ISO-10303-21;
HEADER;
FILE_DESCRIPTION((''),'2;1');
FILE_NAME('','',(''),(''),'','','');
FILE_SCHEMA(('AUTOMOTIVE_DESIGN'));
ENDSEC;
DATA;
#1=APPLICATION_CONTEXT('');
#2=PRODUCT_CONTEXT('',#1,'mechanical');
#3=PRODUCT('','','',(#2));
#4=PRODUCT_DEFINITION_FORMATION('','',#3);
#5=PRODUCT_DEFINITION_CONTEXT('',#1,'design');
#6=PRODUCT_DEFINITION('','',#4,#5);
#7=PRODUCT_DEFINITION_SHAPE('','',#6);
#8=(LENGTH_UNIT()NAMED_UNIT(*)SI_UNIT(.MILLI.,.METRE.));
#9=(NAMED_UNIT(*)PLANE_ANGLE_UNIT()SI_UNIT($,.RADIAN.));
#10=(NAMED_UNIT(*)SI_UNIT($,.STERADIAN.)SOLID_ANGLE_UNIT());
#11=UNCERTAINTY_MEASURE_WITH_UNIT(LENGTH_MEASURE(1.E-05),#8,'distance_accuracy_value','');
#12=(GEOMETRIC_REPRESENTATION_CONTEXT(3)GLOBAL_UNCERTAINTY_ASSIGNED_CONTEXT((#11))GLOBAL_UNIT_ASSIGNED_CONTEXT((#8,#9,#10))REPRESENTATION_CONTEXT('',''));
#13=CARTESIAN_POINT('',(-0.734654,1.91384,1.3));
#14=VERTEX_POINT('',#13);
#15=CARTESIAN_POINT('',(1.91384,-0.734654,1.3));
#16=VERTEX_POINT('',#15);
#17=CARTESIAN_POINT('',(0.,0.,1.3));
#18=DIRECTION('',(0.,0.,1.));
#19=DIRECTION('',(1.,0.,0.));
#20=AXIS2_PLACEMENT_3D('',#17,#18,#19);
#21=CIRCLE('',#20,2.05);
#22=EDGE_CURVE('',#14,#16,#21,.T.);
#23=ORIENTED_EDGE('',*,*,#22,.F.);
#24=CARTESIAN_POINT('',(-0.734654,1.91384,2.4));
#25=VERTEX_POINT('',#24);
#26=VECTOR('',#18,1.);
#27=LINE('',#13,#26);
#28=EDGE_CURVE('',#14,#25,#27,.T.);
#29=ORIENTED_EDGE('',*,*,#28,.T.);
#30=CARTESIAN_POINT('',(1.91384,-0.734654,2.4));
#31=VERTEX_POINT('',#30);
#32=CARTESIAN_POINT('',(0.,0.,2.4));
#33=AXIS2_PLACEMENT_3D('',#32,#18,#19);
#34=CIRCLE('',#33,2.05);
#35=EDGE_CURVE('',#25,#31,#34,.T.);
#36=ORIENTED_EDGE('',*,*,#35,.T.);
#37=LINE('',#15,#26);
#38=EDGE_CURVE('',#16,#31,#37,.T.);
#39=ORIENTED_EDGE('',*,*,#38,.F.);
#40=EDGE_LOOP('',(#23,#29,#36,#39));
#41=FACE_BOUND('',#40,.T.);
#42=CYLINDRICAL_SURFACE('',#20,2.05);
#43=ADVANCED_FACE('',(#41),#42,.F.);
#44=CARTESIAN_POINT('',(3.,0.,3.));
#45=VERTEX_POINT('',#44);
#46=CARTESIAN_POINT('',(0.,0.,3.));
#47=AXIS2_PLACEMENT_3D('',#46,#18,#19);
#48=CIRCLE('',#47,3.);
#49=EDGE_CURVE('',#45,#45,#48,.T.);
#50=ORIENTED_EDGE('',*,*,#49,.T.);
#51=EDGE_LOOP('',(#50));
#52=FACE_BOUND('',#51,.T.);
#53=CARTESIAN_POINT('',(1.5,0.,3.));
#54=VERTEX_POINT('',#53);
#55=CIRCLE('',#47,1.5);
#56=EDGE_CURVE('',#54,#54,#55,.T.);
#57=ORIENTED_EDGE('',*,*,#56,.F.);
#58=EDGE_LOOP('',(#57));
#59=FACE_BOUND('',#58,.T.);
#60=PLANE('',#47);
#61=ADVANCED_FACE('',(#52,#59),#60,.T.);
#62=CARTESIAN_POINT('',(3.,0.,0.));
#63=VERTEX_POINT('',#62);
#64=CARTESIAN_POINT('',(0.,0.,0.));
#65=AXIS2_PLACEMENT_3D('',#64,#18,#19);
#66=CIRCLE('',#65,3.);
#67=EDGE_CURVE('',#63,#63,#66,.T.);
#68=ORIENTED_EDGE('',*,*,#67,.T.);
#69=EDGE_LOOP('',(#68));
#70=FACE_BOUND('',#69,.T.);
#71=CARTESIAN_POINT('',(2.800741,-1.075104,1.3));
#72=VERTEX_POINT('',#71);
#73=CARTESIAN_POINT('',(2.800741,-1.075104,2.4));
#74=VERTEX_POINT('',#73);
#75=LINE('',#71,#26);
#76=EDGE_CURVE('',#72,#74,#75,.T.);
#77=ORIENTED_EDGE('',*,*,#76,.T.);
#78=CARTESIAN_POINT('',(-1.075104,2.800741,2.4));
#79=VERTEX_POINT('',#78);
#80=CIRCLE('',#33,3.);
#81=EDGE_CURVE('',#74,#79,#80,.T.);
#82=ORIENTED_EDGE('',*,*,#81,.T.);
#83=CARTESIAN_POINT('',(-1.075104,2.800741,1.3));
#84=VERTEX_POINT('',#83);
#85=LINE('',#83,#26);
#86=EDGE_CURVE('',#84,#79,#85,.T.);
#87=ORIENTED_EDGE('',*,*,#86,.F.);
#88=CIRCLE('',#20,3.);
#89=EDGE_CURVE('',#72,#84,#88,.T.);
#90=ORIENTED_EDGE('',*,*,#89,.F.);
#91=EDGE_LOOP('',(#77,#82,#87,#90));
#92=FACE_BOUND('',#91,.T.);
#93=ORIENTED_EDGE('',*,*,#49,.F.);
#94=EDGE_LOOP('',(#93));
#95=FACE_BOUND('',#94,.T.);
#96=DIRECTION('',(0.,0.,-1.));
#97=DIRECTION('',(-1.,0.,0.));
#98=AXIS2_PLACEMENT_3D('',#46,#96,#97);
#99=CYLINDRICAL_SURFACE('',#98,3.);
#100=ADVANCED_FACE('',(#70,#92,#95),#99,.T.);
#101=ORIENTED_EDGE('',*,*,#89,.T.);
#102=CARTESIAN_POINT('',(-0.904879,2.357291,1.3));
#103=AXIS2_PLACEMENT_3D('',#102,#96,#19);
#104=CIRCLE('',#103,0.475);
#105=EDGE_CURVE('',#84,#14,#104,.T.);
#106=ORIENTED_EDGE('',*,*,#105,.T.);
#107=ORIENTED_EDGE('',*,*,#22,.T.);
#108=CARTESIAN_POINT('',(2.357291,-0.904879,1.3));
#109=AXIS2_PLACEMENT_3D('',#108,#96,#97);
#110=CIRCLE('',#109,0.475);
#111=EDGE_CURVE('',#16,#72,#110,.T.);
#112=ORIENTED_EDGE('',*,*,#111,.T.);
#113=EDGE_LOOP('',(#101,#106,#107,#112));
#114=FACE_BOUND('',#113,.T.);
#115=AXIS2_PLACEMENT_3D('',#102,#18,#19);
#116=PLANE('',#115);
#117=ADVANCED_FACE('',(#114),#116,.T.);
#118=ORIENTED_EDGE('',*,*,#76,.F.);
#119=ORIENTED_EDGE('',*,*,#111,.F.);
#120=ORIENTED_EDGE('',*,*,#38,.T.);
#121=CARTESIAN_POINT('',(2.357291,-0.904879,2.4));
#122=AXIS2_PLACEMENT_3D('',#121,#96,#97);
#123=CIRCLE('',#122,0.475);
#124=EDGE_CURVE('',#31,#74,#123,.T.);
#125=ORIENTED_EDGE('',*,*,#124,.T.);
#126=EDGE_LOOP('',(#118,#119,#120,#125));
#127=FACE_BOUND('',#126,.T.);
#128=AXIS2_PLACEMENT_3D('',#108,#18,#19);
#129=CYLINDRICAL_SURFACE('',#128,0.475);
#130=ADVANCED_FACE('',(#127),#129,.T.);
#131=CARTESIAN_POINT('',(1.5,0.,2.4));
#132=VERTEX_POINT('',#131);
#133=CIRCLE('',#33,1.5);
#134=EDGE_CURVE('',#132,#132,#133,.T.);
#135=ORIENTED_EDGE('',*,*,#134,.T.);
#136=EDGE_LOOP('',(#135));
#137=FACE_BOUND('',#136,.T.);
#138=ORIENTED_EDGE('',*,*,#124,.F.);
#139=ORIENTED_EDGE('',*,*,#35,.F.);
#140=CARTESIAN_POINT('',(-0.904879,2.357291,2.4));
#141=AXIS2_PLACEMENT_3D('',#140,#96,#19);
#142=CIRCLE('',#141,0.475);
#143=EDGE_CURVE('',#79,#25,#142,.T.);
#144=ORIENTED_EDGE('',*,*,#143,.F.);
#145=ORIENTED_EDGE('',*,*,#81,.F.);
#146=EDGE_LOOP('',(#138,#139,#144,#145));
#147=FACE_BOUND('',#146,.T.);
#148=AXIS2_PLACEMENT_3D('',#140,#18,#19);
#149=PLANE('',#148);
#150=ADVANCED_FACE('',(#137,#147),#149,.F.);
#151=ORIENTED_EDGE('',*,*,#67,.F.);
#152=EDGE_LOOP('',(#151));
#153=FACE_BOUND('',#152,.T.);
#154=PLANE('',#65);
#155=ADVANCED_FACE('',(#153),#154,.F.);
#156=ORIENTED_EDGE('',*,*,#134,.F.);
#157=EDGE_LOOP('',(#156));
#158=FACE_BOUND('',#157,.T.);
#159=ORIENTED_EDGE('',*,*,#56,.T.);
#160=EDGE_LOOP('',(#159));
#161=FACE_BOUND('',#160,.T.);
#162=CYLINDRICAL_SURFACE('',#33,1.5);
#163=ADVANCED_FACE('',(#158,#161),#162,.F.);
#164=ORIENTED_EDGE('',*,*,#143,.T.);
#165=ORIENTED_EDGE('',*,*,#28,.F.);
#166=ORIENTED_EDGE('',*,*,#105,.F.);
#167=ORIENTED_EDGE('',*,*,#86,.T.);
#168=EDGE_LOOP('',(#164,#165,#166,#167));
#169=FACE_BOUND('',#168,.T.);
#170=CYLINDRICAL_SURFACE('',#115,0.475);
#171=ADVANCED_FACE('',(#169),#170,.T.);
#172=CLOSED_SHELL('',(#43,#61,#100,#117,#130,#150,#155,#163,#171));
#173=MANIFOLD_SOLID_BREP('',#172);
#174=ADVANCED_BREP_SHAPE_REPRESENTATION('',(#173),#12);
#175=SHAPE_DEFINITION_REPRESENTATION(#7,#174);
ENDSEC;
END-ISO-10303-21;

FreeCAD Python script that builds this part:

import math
import FreeCAD as App
import Part
import Sketcher

V = App.Vector
Q = App.Units.Quantity

doc = App.newDocument("Part")
body = doc.addObject("PartDesign::Body", "Body")

# Sketch on XY plane
sketch1 = doc.addObject("Sketcher::SketchObject", "Sketch")
body.addObject(sketch1)
sketch1.AttachmentSupport = (doc.XY_Plane, [""])
sketch1.MapMode = "FlatFace"
sketch1.addGeometry(Part.Circle(V(0, 0, 0), V(0, 0, 1), 3), False)
sketch1.addConstraint([
    Sketcher.Constraint("Coincident", 0, 3, -1, 1),
    Sketcher.Constraint("Diameter", 0, 6.0),
])
pad1 = doc.addObject("PartDesign::Pad", "Pad")
body.addObject(pad1)
pad1.Profile = sketch1
pad1.Length = 3

# Sketch on XY plane
sketch2 = doc.addObject("Sketcher::SketchObject", "Sketch001")
body.addObject(sketch2)
sketch2.AttachmentSupport = (doc.XY_Plane, [""])
sketch2.MapMode = "FlatFace"
sketch2.AttachmentOffset = App.Placement(V(0, 0, 3), App.Rotation())
sketch2.addGeometry(Part.Circle(V(0, 0, 0), V(0, 0, 1), 1.5), False)
sketch2.addConstraint([
    Sketcher.Constraint("Coincident", 0, 3, -1, 1),
    Sketcher.Constraint("Diameter", 0, 3.0),
])
pocket1 = doc.addObject("PartDesign::Pocket", "Pocket")
body.addObject(pocket1)
pocket1.Profile = sketch2
pocket1.Length = 0.6

# Sketch on XY plane
sketch3 = doc.addObject("Sketcher::SketchObject", "Sketch002")
body.addObject(sketch3)
sketch3.AttachmentSupport = (doc.XY_Plane, [""])
sketch3.MapMode = "FlatFace"
sketch3.AttachmentOffset = App.Placement(V(0, 0, 2.4), App.Rotation())
sketch3.addGeometry([
    Part.LineSegment(V(-1.34, 3.5, 0), V(-1.08, 2.8, 0)),  # 0
    Part.ArcOfCircle(Part.Circle(V(-0.9, 2.36, 0), V(0, 0, 1), 0.47), math.radians(-69), math.radians(111)),  # 1
    Part.ArcOfCircle(Part.Circle(V(0, 0, 0), V(0, 0, 1), 2.05), math.radians(111), math.radians(339)),  # 2
    Part.ArcOfCircle(Part.Circle(V(2.36, -0.9, 0), V(0, 0, 1), 0.47), math.radians(-21), math.radians(159)),  # 3
    Part.LineSegment(V(2.8, -1.08, 0), V(3.5, -1.34, 0)),  # 4
    Part.ArcOfCircle(Part.Circle(V(0, 0, 0), V(0, 0, 1), 3.75), math.radians(-21), math.radians(111)),  # 5
], False)
sketch3.addConstraint([
    Sketcher.Constraint("Coincident", 0, 2, 1, 2),
    Sketcher.Constraint("Tangent", 1, 1, 2, 1),
    Sketcher.Constraint("Tangent", 2, 2, 3, 2),
    Sketcher.Constraint("Coincident", 3, 1, 4, 1),
    Sketcher.Constraint("Coincident", 4, 2, 5, 1),
    Sketcher.Constraint("Coincident", 5, 2, 0, 1),
    Sketcher.Constraint("Coincident", 2, 3, -1, 1),
    Sketcher.Constraint("Coincident", 5, 3, -1, 1),
    Sketcher.Constraint("Equal", 1, 3),
    Sketcher.Constraint("Angle", 0, Q("-69 deg")),
    Sketcher.Constraint("Angle", 4, Q("-21 deg")),
    Sketcher.Constraint("Radius", 2, 2.05),
    Sketcher.Constraint("Radius", 5, 3.75),
    Sketcher.Constraint("Radius", 1, 0.475),
    Sketcher.Constraint("DistanceY", 4, 2, 3, 3, 0.439001),
    Sketcher.Constraint("DistanceX", 5, 2, 1, 3, 0.439001),
    Sketcher.Constraint("DistanceY", 1, 1, 0, 2, 0.886901),
    Sketcher.Constraint("DistanceX", 2, 2, 3, 1, 0.886901),
])
pocket2 = doc.addObject("PartDesign::Pocket", "Pocket001")
body.addObject(pocket2)
pocket2.Profile = sketch3
pocket2.Length = 1.1

doc.recompute()
